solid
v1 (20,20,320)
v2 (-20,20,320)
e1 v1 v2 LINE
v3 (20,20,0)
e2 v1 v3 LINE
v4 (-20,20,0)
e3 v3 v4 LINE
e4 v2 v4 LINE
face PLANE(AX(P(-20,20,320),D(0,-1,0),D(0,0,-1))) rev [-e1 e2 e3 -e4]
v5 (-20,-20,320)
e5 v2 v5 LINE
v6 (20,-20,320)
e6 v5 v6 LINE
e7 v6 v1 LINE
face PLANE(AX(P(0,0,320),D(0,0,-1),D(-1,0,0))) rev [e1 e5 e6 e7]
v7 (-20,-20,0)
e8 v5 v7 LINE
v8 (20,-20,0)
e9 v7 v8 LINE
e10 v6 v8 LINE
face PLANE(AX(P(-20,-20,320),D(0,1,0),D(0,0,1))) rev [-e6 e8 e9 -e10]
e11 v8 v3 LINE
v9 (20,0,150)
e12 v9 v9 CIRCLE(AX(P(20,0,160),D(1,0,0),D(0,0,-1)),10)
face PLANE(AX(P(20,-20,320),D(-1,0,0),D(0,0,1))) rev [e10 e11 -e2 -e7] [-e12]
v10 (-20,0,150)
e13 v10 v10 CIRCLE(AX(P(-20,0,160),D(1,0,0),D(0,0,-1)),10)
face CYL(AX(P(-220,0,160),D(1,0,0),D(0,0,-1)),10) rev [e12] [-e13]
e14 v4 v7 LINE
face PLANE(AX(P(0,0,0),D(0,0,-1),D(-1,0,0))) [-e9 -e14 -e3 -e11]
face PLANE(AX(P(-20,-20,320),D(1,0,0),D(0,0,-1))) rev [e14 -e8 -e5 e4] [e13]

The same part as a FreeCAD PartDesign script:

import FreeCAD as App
import Part
import Sketcher

V = App.Vector
Q = App.Units.Quantity

doc = App.newDocument("Part")
params = doc.addObject("Spreadsheet::Sheet", "Params")
for row, (alias, value) in enumerate([
    ("sketch1_width", "40 mm"),
    ("pad1_length", "320 mm"),
    ("sketch2_diameter", "20 mm"),
    ("pocket1_length", "240 mm"),
], start=1):
    params.set(f"A{row}", alias)
    params.set(f"B{row}", "=" + value)
    params.setAlias(f"B{row}", alias)

body = doc.addObject("PartDesign::Body", "Body")

sketch1 = body.newObject("Sketcher::SketchObject", "Sketch")
sketch1.AttachmentSupport = (doc.getObject("XY_Plane"), [""])
sketch1.MapMode = "FlatFace"
sketch1.addGeometry([
    Part.LineSegment(V(-20, 20, 0), V(-20, -20, 0)),
    Part.LineSegment(V(-20, -20, 0), V(20, -20, 0)),
    Part.LineSegment(V(20, -20, 0), V(20, 20, 0)),
    Part.LineSegment(V(20, 20, 0), V(-20, 20, 0)),
], False)
sketch1.addConstraint([
    Sketcher.Constraint("Coincident", 0, 2, 1, 1),
    Sketcher.Constraint("Coincident", 1, 2, 2, 1),
    Sketcher.Constraint("Coincident", 2, 2, 3, 1),
    Sketcher.Constraint("Coincident", 3, 2, 0, 1),
    Sketcher.Constraint("Vertical", 0),
    Sketcher.Constraint("Horizontal", 1),
    Sketcher.Constraint("Vertical", 2),
    Sketcher.Constraint("Horizontal", 3),
    Sketcher.Constraint("Symmetric", 0, 2, 2, 2, -1, 1),
    Sketcher.Constraint("Equal", 3, 0),
    Sketcher.Constraint("DistanceX", 1, 1, 1, 2, Q("40 mm")),
])
sketch1.setExpression("Constraints[10]", "Params.sketch1_width")
pad1 = body.newObject("PartDesign::Pad", "Pad")
pad1.Profile = sketch1
pad1.setExpression("Length", "Params.pad1_length")

sketch2 = body.newObject("Sketcher::SketchObject", "Sketch001")
sketch2.AttachmentSupport = (doc.getObject("YZ_Plane"), [""])
sketch2.MapMode = "FlatFace"
sketch2.AttachmentOffset = App.Placement(V(0, 0, 20), App.Rotation())
sketch2.addGeometry(Part.Circle(V(0, 160, 0), V(0, 0, 1), 10), False)
sketch2.addConstraint([
    Sketcher.Constraint("PointOnObject", 0, 3, -2),
    Sketcher.Constraint("Diameter", 0, Q("20 mm")),
    Sketcher.Constraint("DistanceY", -1, 1, 0, 3, Q("160 mm")),
])
sketch2.setExpression("Constraints[1]", "Params.sketch2_diameter")
pocket1 = body.newObject("PartDesign::Pocket", "Pocket")
pocket1.Profile = sketch2
pocket1.setExpression("Length", "Params.pocket1_length")

doc.recompute()
